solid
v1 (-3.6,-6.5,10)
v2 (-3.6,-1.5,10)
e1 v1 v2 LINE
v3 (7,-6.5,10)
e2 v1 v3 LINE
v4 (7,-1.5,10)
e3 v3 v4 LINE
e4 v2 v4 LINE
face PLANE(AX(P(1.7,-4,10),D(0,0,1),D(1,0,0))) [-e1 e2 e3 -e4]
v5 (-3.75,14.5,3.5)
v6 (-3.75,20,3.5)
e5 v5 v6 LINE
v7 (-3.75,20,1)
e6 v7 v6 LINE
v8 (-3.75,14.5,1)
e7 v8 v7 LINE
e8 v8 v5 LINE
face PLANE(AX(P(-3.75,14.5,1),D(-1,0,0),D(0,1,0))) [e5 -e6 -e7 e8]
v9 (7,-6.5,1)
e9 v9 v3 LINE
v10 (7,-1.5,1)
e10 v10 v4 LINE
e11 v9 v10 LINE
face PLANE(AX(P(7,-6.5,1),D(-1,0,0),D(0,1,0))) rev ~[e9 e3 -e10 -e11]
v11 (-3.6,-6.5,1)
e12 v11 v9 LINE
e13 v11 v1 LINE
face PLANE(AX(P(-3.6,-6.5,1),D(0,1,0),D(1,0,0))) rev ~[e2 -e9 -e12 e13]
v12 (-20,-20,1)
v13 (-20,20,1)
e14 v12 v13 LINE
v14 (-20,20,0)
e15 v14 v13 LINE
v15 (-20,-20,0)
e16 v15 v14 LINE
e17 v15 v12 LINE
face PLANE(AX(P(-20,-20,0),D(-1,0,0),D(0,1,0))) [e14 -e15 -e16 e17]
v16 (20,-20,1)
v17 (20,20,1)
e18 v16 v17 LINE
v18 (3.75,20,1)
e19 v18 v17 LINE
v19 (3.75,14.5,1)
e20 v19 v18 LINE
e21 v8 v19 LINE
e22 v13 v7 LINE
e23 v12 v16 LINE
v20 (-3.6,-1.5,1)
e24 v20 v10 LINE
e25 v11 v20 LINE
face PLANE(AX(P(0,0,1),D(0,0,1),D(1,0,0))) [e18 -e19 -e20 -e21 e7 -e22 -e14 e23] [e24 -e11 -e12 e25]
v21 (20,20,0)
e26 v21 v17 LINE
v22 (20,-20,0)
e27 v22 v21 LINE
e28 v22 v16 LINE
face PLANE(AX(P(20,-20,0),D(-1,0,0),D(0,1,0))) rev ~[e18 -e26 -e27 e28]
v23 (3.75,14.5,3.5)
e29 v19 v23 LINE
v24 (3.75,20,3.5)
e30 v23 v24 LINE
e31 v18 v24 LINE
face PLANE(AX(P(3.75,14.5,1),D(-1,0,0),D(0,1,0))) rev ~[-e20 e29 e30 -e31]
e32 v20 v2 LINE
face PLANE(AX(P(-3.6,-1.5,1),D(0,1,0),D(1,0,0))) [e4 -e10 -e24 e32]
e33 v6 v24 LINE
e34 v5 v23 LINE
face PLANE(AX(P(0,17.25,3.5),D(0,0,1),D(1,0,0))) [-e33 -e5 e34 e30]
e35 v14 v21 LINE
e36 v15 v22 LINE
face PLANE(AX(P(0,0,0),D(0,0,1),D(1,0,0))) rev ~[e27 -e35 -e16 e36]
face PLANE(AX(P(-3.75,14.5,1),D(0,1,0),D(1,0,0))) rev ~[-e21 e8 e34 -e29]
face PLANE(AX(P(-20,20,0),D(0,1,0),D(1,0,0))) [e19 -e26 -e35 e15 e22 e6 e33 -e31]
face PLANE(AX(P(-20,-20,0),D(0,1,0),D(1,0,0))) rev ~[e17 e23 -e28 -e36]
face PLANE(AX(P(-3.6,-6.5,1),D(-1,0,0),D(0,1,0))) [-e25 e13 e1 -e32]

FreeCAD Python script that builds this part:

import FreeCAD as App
import Part
import Sketcher

V = App.Vector
Q = App.Units.Quantity


def add_polygon(sketch, points):
    """Adds a closed chain of lines whose ends are joined by coincident constraints."""
    first, n = sketch.GeometryCount, len(points)
    for a, b in zip(points, points[1:] + points[:1]):
        sketch.addGeometry(Part.LineSegment(App.Vector(*a, 0), App.Vector(*b, 0)), False)
    for i in range(n):
        sketch.addConstraint(Sketcher.Constraint("Coincident", first + i, 2, first + (i + 1) % n, 1))

doc = App.newDocument("Part")
body = doc.addObject("PartDesign::Body", "Body")

sketch1 = body.newObject("Sketcher::SketchObject", "Sketch")
sketch1.AttachmentSupport = (doc.getObject("XY_Plane"), [""])
sketch1.MapMode = "FlatFace"
add_polygon(sketch1, [(-20, 20), (-20, -20), (20, -20), (20, 20)])
sketch1.addConstraint([
    Sketcher.Constraint("Vertical", 0),
    Sketcher.Constraint("Horizontal", 1),
    Sketcher.Constraint("Vertical", 2),
    Sketcher.Constraint("Horizontal", 3),
    Sketcher.Constraint("Symmetric", 0, 2, 2, 2, -1, 1),
    Sketcher.Constraint("Equal", 3, 0),
    Sketcher.Constraint("DistanceX", 1, 1, 1, 2, Q("40 mm")),
])
pad1 = body.newObject("PartDesign::Pad", "Pad")
pad1.Profile = sketch1
pad1.Length = 1

sketch2 = body.newObject("Sketcher::SketchObject", "Sketch001")
sketch2.AttachmentSupport = (doc.getObject("XY_Plane"), [""])
sketch2.MapMode = "FlatFace"
sketch2.AttachmentOffset = App.Placement(V(0, 0, 1), App.Rotation())
add_polygon(sketch2, [(-4, -2), (-4, -6), (7, -6), (7, -2)])
sketch2.addConstraint([
    Sketcher.Constraint("Vertical", 0),
    Sketcher.Constraint("Horizontal", 1),
    Sketcher.Constraint("Vertical", 2),
    Sketcher.Constraint("Horizontal", 3),
    Sketcher.Constraint("DistanceY", 0, 2, 0, 1, Q("5 mm")),
    Sketcher.Constraint("DistanceX", 1, 1, 1, 2, Q("10.6 mm")),
    Sketcher.Constraint("DistanceX", -1, 1, 1, 2, Q("7 mm")),
    Sketcher.Constraint("DistanceY", 0, 2, -1, 1, Q("6.5 mm")),
])
pad2 = body.newObject("PartDesign::Pad", "Pad001")
pad2.Profile = sketch2
pad2.Length = 9

sketch3 = body.newObject("Sketcher::SketchObject", "Sketch002")
sketch3.AttachmentSupport = (doc.getObject("XY_Plane"), [""])
sketch3.MapMode = "FlatFace"
sketch3.AttachmentOffset = App.Placement(V(0, 0, 1), App.Rotation())
add_polygon(sketch3, [(-4, 20), (-4, 14), (4, 14), (4, 20)])
sketch3.addConstraint([
    Sketcher.Constraint("Vertical", 0),
    Sketcher.Constraint("Horizontal", 1),
    Sketcher.Constraint("Vertical", 2),
    Sketcher.Constraint("Horizontal", 3),
    Sketcher.Constraint("DistanceX", 1, 1, 1, 2, Q("7.5 mm")),
    Sketcher.Constraint("DistanceY", 0, 2, 0, 1, Q("5.5 mm")),
    Sketcher.Constraint("DistanceY", -1, 1, 2, 2, Q("20 mm")),
    Sketcher.Constraint("DistanceX", 0, 2, -1, 1, Q("3.75 mm")),
])
pad3 = body.newObject("PartDesign::Pad", "Pad002")
pad3.Profile = sketch3
pad3.Length = 2.5

doc.recompute()
